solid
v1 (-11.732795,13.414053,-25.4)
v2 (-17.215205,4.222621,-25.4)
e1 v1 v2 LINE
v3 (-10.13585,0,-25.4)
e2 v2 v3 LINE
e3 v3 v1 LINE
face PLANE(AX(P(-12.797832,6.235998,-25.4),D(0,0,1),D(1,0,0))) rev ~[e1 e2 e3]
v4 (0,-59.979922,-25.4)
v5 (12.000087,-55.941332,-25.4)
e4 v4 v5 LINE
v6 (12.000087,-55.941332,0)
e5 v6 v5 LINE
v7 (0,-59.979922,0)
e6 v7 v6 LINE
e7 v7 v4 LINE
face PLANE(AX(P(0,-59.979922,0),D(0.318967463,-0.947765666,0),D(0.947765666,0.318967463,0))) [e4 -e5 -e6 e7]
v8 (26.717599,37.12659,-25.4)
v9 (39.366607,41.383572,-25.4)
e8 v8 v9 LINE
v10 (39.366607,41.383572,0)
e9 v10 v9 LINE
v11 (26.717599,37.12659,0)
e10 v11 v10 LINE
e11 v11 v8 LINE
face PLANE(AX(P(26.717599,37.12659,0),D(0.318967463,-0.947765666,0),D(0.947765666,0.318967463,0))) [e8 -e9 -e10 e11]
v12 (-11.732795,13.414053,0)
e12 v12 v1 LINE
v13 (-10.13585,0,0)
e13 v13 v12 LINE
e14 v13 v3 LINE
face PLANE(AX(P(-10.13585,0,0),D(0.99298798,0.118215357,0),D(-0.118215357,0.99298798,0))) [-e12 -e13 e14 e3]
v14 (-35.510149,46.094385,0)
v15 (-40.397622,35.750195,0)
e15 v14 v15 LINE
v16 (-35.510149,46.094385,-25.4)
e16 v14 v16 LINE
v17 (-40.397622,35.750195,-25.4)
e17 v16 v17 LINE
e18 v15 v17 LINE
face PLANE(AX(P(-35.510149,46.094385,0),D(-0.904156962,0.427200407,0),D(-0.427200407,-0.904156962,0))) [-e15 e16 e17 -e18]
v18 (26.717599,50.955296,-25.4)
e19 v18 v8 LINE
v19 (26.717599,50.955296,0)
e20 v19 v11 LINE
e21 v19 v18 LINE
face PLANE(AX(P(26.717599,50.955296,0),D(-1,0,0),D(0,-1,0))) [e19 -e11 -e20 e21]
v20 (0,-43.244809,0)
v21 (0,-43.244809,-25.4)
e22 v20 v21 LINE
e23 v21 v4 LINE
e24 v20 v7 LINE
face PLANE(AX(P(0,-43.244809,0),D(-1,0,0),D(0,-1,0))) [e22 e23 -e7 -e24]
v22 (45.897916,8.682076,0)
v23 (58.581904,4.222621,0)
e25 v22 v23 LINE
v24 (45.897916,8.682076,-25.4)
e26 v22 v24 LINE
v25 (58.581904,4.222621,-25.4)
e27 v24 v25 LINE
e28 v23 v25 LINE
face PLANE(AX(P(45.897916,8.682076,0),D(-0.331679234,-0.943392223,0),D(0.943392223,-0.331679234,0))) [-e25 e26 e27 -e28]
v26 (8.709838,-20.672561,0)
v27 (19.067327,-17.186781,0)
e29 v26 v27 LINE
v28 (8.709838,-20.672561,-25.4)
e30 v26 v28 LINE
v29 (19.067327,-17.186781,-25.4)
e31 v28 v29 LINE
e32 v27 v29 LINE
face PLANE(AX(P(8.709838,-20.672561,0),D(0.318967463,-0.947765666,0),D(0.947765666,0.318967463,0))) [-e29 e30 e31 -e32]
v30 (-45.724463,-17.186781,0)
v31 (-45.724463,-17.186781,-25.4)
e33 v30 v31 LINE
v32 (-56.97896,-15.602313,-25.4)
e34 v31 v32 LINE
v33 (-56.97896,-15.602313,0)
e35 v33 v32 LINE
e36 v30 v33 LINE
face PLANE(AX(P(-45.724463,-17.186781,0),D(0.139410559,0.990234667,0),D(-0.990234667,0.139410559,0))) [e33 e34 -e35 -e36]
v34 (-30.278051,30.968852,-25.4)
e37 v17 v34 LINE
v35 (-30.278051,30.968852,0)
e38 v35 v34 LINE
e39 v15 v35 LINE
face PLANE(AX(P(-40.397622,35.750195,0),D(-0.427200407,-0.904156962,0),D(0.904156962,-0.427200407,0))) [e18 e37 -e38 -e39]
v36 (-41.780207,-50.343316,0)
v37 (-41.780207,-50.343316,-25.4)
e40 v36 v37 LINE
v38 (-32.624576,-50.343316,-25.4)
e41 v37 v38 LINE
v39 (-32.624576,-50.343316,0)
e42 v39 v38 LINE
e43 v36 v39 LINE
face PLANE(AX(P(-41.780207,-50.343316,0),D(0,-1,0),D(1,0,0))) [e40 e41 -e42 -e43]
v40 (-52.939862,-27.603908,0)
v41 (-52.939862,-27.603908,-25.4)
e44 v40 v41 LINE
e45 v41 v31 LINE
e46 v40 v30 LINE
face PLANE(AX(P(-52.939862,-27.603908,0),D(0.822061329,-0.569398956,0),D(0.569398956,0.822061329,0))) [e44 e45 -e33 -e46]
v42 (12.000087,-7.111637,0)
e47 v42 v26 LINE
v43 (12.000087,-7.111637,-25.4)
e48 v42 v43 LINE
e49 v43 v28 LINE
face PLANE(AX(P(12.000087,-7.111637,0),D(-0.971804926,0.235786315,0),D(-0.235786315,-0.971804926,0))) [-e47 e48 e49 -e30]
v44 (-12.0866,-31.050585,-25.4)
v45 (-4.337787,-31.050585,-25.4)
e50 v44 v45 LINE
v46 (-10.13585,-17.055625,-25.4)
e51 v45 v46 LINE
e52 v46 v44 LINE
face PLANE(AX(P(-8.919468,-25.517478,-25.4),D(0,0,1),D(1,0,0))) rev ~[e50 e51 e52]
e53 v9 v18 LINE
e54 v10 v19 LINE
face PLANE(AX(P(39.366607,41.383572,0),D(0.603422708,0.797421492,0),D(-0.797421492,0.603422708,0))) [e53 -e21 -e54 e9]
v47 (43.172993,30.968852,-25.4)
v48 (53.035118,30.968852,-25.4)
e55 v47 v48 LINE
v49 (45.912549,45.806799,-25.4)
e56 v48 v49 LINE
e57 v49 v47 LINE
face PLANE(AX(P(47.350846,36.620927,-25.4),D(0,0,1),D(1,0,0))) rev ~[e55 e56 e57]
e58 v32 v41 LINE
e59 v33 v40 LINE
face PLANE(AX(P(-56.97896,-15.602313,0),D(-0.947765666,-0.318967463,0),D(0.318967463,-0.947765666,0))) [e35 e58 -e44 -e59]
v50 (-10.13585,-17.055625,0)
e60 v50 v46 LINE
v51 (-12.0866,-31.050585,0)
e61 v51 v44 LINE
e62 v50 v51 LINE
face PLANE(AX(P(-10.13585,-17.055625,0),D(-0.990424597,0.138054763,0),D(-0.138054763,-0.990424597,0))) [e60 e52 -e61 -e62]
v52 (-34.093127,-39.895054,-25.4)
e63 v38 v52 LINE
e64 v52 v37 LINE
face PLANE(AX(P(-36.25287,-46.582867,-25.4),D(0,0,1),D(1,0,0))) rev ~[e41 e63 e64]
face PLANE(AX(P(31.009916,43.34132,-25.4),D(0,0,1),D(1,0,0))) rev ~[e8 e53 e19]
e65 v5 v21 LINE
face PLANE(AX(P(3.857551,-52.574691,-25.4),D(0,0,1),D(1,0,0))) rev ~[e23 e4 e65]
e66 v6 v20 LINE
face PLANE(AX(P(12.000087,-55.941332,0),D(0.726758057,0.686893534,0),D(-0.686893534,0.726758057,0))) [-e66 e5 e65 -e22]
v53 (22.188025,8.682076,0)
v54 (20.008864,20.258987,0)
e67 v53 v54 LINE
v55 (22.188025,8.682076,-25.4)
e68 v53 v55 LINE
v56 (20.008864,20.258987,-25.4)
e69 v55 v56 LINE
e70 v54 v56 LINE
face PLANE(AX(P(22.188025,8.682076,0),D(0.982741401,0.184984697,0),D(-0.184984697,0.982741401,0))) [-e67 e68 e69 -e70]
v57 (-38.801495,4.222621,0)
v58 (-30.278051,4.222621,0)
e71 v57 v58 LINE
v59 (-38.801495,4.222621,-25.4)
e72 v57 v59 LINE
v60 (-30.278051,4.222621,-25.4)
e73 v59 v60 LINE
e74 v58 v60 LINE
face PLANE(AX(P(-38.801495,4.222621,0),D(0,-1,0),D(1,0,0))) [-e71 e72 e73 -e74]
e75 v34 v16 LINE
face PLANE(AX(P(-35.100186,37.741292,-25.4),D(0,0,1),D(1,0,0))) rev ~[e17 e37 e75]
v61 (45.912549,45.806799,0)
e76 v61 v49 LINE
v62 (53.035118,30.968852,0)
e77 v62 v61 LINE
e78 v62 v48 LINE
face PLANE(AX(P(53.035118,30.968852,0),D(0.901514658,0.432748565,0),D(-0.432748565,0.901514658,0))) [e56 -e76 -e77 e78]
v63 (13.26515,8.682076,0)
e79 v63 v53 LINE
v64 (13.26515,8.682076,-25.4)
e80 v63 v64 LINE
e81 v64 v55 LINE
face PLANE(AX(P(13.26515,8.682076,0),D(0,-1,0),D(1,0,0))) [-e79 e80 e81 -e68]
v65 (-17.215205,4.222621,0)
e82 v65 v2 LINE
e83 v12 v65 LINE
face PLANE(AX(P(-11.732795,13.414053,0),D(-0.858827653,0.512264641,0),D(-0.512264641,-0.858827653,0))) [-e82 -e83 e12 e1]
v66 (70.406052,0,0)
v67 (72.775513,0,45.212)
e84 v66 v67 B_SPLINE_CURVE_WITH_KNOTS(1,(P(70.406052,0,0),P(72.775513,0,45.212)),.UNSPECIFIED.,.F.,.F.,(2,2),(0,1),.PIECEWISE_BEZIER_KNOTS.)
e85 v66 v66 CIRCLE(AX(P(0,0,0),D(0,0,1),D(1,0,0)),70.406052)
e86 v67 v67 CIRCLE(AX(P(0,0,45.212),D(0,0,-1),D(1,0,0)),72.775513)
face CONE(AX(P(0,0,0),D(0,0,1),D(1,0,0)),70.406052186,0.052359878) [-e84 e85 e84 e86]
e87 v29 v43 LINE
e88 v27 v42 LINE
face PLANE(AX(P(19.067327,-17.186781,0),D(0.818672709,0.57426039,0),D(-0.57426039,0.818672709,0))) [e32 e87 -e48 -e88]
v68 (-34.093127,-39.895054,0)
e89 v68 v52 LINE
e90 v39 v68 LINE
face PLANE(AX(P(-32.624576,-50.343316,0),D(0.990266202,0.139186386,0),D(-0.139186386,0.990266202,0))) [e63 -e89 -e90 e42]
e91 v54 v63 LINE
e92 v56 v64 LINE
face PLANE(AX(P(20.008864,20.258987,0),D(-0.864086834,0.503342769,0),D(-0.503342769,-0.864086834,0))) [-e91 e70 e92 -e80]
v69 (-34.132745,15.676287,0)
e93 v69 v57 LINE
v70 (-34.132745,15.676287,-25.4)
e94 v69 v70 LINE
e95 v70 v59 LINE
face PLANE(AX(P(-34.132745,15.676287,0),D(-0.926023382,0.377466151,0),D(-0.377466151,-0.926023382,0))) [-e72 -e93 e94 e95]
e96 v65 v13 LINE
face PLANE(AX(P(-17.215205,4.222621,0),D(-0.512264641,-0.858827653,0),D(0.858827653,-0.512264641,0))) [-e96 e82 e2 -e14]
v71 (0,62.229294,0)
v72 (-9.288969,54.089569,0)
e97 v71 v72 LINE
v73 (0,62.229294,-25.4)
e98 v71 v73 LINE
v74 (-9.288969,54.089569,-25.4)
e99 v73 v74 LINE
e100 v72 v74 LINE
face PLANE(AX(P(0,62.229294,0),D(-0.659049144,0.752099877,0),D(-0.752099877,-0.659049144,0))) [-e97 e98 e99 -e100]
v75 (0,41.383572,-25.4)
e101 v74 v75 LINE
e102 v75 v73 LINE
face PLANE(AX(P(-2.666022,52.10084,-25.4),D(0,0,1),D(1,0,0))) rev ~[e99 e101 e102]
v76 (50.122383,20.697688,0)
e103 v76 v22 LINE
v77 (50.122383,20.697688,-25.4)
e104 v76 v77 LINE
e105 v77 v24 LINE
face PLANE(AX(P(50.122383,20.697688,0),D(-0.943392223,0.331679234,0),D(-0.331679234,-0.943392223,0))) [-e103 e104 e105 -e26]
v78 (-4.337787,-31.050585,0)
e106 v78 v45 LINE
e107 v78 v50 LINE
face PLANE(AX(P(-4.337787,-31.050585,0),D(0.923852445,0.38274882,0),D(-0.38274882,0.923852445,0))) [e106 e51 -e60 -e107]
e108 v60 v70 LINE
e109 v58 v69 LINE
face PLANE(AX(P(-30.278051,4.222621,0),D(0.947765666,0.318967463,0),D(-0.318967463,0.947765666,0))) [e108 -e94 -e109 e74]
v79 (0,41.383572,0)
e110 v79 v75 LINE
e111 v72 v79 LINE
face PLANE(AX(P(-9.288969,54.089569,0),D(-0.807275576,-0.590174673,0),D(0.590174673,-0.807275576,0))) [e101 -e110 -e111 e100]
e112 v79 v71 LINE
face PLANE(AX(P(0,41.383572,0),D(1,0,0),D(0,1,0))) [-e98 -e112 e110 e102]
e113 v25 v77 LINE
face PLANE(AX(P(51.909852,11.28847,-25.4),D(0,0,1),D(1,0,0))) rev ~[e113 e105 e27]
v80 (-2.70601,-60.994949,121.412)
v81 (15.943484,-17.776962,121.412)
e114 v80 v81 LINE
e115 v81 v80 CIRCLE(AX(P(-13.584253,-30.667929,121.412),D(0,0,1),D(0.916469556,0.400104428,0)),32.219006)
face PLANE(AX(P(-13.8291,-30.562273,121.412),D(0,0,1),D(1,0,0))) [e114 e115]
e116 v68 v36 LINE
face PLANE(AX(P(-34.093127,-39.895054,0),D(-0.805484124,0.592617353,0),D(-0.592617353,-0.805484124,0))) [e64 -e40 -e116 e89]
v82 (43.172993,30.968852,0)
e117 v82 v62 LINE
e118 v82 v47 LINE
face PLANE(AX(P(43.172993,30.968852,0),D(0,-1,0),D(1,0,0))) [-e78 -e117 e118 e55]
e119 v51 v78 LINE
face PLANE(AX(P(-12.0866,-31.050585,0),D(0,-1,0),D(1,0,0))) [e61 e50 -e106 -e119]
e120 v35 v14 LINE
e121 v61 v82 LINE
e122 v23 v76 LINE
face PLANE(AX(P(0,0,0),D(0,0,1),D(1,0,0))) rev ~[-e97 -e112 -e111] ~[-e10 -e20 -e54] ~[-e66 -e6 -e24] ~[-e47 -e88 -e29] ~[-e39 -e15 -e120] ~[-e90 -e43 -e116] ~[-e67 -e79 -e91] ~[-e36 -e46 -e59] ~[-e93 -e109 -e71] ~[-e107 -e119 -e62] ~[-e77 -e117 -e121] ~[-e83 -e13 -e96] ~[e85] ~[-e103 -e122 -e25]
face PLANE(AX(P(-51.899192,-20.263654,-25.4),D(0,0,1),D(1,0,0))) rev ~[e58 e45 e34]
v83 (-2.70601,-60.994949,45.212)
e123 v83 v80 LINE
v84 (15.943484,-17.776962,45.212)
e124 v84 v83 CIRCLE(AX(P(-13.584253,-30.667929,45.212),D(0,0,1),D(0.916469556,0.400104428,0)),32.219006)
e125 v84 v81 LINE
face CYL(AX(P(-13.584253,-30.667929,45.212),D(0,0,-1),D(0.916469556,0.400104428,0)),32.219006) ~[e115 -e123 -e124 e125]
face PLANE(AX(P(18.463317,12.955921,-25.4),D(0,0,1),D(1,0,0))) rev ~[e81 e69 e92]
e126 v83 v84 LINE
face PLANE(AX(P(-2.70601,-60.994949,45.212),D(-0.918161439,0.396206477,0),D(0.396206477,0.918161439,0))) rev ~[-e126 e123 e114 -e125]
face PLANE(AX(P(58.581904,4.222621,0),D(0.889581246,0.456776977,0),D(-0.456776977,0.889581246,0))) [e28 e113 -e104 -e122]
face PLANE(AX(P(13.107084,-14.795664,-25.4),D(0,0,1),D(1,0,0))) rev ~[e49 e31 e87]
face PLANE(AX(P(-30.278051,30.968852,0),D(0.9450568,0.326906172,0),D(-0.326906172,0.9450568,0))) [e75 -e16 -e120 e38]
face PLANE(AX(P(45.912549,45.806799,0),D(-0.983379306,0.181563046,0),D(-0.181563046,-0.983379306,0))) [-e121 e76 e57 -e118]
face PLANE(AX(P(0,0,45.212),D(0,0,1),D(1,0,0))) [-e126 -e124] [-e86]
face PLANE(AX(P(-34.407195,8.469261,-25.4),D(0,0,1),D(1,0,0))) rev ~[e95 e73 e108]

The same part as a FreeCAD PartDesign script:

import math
import FreeCAD as App
import Part
import Sketcher
from FreeCAD import Vector
Q = App.Units.Quantity

doc = App.newDocument("Part")
body = doc.addObject("PartDesign::Body", "Body")

# Sketch on XY plane
sketch1 = body.newObject("Sketcher::SketchObject", "Sketch")
sketch1.AttachmentSupport = (doc.getObject("XY_Plane"), [""])
sketch1.MapMode = "FlatFace"
sketch1.addGeometry(Part.Circle(Vector(0, 0, 0), Vector(0, 0, 1), 70.406052), False)
sketch1.addConstraint([
    Sketcher.Constraint("Coincident", 0, 3, -1, 1),
    Sketcher.Constraint("Diameter", 0, 140.812104),
])
pad1 = body.newObject("PartDesign::Pad", "Pad")
pad1.Profile = sketch1
pad1.Length = Q("1.78 in")
pad1.TaperAngle = 3

# Sketch on XY plane
sketch2 = body.newObject("Sketcher::SketchObject", "Sketch001")
sketch2.AttachmentSupport = (doc.getObject("XY_Plane"), [""])
sketch2.MapMode = "FlatFace"
sketch2.addGeometry([
    Part.LineSegment(Vector(13.26515, 8.682076, 0), Vector(22.188025, 8.682076, 0)),  # 0
    Part.LineSegment(Vector(22.188025, 8.682076, 0), Vector(20.008864, 20.258987, 0)),  # 1
    Part.LineSegment(Vector(20.008864, 20.258987, 0), Vector(13.26515, 8.682076, 0)),  # 2
    Part.LineSegment(Vector(26.717599, 37.12659, 0), Vector(39.366607, 41.383572, 0)),  # 3
    Part.LineSegment(Vector(39.366607, 41.383572, 0), Vector(26.717599, 50.955296, 0)),  # 4
    Part.LineSegment(Vector(26.717599, 50.955296, 0), Vector(26.717599, 37.12659, 0)),  # 5
    Part.LineSegment(Vector(0, 41.383572, 0), Vector(0, 62.229294, 0)),  # 6
    Part.LineSegment(Vector(0, 62.229294, 0), Vector(-9.288969, 54.089569, 0)),  # 7
    Part.LineSegment(Vector(-9.288969, 54.089569, 0), Vector(0, 41.383572, 0)),  # 8
    Part.LineSegment(Vector(-17.215205, 4.222621, 0), Vector(-10.13585, 0, 0)),  # 9
    Part.LineSegment(Vector(-10.13585, 0, 0), Vector(-11.732795, 13.414053, 0)),  # 10
    Part.LineSegment(Vector(-11.732795, 13.414053, 0), Vector(-17.215205, 4.222621, 0)),  # 11
    Part.LineSegment(Vector(-12.0866, -31.050585, 0), Vector(-4.337787, -31.050585, 0)),  # 12
    Part.LineSegment(Vector(-4.337787, -31.050585, 0), Vector(-10.13585, -17.055625, 0)),  # 13
    Part.LineSegment(Vector(-10.13585, -17.055625, 0), Vector(-12.0866, -31.050585, 0)),  # 14
    Part.LineSegment(Vector(0, -59.979922, 0), Vector(12.000087, -55.941332, 0)),  # 15
    Part.LineSegment(Vector(12.000087, -55.941332, 0), Vector(0, -43.244809, 0)),  # 16
    Part.LineSegment(Vector(0, -43.244809, 0), Vector(0, -59.979922, 0)),  # 17
    Part.LineSegment(Vector(45.897916, 8.682076, 0), Vector(58.581904, 4.222621, 0)),  # 18
    Part.LineSegment(Vector(58.581904, 4.222621, 0), Vector(50.122383, 20.697688, 0)),  # 19
    Part.LineSegment(Vector(50.122383, 20.697688, 0), Vector(45.897916, 8.682076, 0)),  # 20
    Part.LineSegment(Vector(-40.397622, 35.750195, 0), Vector(-30.278051, 30.968852, 0)),  # 21
    Part.LineSegment(Vector(-30.278051, 30.968852, 0), Vector(-35.510149, 46.094385, 0)),  # 22
    Part.LineSegment(Vector(-35.510149, 46.094385, 0), Vector(-40.397622, 35.750195, 0)),  # 23
    Part.LineSegment(Vector(-52.939862, -27.603908, 0), Vector(-45.724463, -17.186781, 0)),  # 24
    Part.LineSegment(Vector(-45.724463, -17.186781, 0), Vector(-56.97896, -15.602313, 0)),  # 25
    Part.LineSegment(Vector(-56.97896, -15.602313, 0), Vector(-52.939862, -27.603908, 0)),  # 26
    Part.LineSegment(Vector(8.709838, -20.672561, 0), Vector(19.067327, -17.186781, 0)),  # 27
    Part.LineSegment(Vector(19.067327, -17.186781, 0), Vector(12.000087, -7.111637, 0)),  # 28
    Part.LineSegment(Vector(12.000087, -7.111637, 0), Vector(8.709838, -20.672561, 0)),  # 29
    Part.LineSegment(Vector(-38.801495, 4.222621, 0), Vector(-30.278051, 4.222621, 0)),  # 30
    Part.LineSegment(Vector(-30.278051, 4.222621, 0), Vector(-34.132745, 15.676287, 0)),  # 31
    Part.LineSegment(Vector(-34.132745, 15.676287, 0), Vector(-38.801495, 4.222621, 0)),  # 32
    Part.LineSegment(Vector(-41.780207, -50.343316, 0), Vector(-32.624576, -50.343316, 0)),  # 33
    Part.LineSegment(Vector(-32.624576, -50.343316, 0), Vector(-34.093127, -39.895054, 0)),  # 34
    Part.LineSegment(Vector(-34.093127, -39.895054, 0), Vector(-41.780207, -50.343316, 0)),  # 35
    Part.LineSegment(Vector(43.172993, 30.968852, 0), Vector(53.035118, 30.968852, 0)),  # 36
    Part.LineSegment(Vector(53.035118, 30.968852, 0), Vector(45.912549, 45.806799, 0)),  # 37
    Part.LineSegment(Vector(45.912549, 45.806799, 0), Vector(43.172993, 30.968852, 0)),  # 38
], False)
sketch2.addConstraint([
    Sketcher.Constraint("Coincident", 0, 2, 1, 1),
    Sketcher.Constraint("Coincident", 1, 2, 2, 1),
    Sketcher.Constraint("Coincident", 2, 2, 0, 1),
    Sketcher.Constraint("Coincident", 3, 2, 4, 1),
    Sketcher.Constraint("Coincident", 4, 2, 5, 1),
    Sketcher.Constraint("Coincident", 5, 2, 3, 1),
    Sketcher.Constraint("Coincident", 6, 2, 7, 1),
    Sketcher.Constraint("Coincident", 7, 2, 8, 1),
    Sketcher.Constraint("Coincident", 8, 2, 6, 1),
    Sketcher.Constraint("Coincident", 9, 2, 10, 1),
    Sketcher.Constraint("Coincident", 10, 2, 11, 1),
    Sketcher.Constraint("Coincident", 11, 2, 9, 1),
    Sketcher.Constraint("Coincident", 12, 2, 13, 1),
    Sketcher.Constraint("Coincident", 13, 2, 14, 1),
    Sketcher.Constraint("Coincident", 14, 2, 12, 1),
    Sketcher.Constraint("Coincident", 15, 2, 16, 1),
    Sketcher.Constraint("Coincident", 16, 2, 17, 1),
    Sketcher.Constraint("Coincident", 17, 2, 15, 1),
    Sketcher.Constraint("Coincident", 18, 2, 19, 1),
    Sketcher.Constraint("Coincident", 19, 2, 20, 1),
    Sketcher.Constraint("Coincident", 20, 2, 18, 1),
    Sketcher.Constraint("Coincident", 21, 2, 22, 1),
    Sketcher.Constraint("Coincident", 22, 2, 23, 1),
    Sketcher.Constraint("Coincident", 23, 2, 21, 1),
    Sketcher.Constraint("Coincident", 24, 2, 25, 1),
    Sketcher.Constraint("Coincident", 25, 2, 26, 1),
    Sketcher.Constraint("Coincident", 26, 2, 24, 1),
    Sketcher.Constraint("Coincident", 27, 2, 28, 1),
    Sketcher.Constraint("Coincident", 28, 2, 29, 1),
    Sketcher.Constraint("Coincident", 29, 2, 27, 1),
    Sketcher.Constraint("Coincident", 30, 2, 31, 1),
    Sketcher.Constraint("Coincident", 31, 2, 32, 1),
    Sketcher.Constraint("Coincident", 32, 2, 30, 1),
    Sketcher.Constraint("Coincident", 33, 2, 34, 1),
    Sketcher.Constraint("Coincident", 34, 2, 35, 1),
    Sketcher.Constraint("Coincident", 35, 2, 33, 1),
    Sketcher.Constraint("Coincident", 36, 2, 37, 1),
    Sketcher.Constraint("Coincident", 37, 2, 38, 1),
    Sketcher.Constraint("Coincident", 38, 2, 36, 1),
    Sketcher.Constraint("Horizontal", 0),
    Sketcher.Constraint("Vertical", 5),
    Sketcher.Constraint("Vertical", 6),
    Sketcher.Constraint("Horizontal", 12),
    Sketcher.Constraint("Vertical", 17),
    Sketcher.Constraint("Horizontal", 30),
    Sketcher.Constraint("Horizontal", 33),
    Sketcher.Constraint("Horizontal", 36),
    Sketcher.Constraint("PointOnObject", 6, 2, -2),
    Sketcher.Constraint("PointOnObject", 9, 2, -1),
    Sketcher.Constraint("PointOnObject", 16, 2, -2),
    Sketcher.Constraint("Perpendicular", 9, 11),
    Sketcher.Constraint("Parallel", 3, 15),
    Sketcher.Constraint("Perpendicular", 18, 20),
    Sketcher.Constraint("Perpendicular", 21, 23),
    Sketcher.Constraint("Perpendicular", 15, 26),
    Sketcher.Constraint("Perpendicular", 26, 27),
    Sketcher.Constraint("Perpendicular", 27, 31),
    Sketcher.Constraint("Horizontal", 3, 2, 8, 2),
    Sketcher.Constraint("Horizontal", 11, 2, 18, 2),
    Sketcher.Constraint("Horizontal", 2, 2, 20, 2),
    Sketcher.Constraint("Horizontal", 24, 2, 27, 2),
    Sketcher.Constraint("Horizontal", 18, 2, 30, 2),
    Sketcher.Constraint("Horizontal", 21, 2, 36, 2),
    Sketcher.Constraint("Vertical", 9, 2, 13, 2),
    Sketcher.Constraint("Vertical", 15, 2, 28, 2),
    Sketcher.Constraint("Vertical", 21, 2, 30, 2),
    Sketcher.Constraint("DistanceX", 21, 2, 9, 2, Q("0.7930001 in")),
    Sketcher.Constraint("DistanceY", 0, 2, 4, 2, Q("1.6643 in")),
    Sketcher.Constraint("DistanceX", 5, 2, 18, 2, Q("1.2545002 in")),
    Sketcher.Constraint("DistanceX", 28, 2, 0, 2, Q("0.4010999 in")),
    Sketcher.Constraint("Distance", 11, 10.702301),
    Sketcher.Constraint("Distance", 23, 11.440701),
    Sketcher.Constraint("DistanceX", 33, 1, 33, 2, 9.155631),
    Sketcher.Constraint("DistanceX", -1, 1, 4, 2, 26.717599),
    Sketcher.Constraint("DistanceX", 14, 2, -1, 1, 12.0866),
    Sketcher.Constraint("DistanceY", -1, 1, 37, 2, 45.806799),
    Sketcher.Constraint("DistanceY", 4, 2, 6, 2, 11.273999),
    Sketcher.Constraint("DistanceX", 9, 2, 2, 2, 23.401),
    Sketcher.Constraint("DistanceY", 13, 2, 2, 2, 25.737701),
    Sketcher.Constraint("DistanceY", 19, 2, 5, 2, 16.428902),
    Sketcher.Constraint("DistanceY", 1, 2, 19, 2, 0.4387),
    Sketcher.Constraint("DistanceY", 10, 2, 21, 2, 17.554799),
    Sketcher.Constraint("DistanceX", 22, 2, 21, 2, 5.232098),
    Sketcher.Constraint("DistanceX", 26, 2, 24, 2, 7.215399),
    Sketcher.Constraint("DistanceX", 27, 2, 0, 2, 3.120698),
    Sketcher.Constraint("DistanceX", 20, 2, 36, 2, 7.137202),
    Sketcher.Constraint("Distance", 1, 11.780222),
    Sketcher.Constraint("Distance", 7, 12.350711),
    Sketcher.Constraint("Distance", 13, 15.14848),
    Sketcher.Constraint("Distance", 15, 12.661449),
    Sketcher.Constraint("Distance", 21, 11.192272),
    Sketcher.Constraint("Distance", 26, 12.66304),
    Sketcher.Constraint("Distance", 28, 12.306682),
    Sketcher.Constraint("Distance", 29, 13.954368),
    Sketcher.Constraint("Distance", 38, 15.088732),
    Sketcher.Constraint("DistanceX", 0, 1, 0, 2, 8.922875),
    Sketcher.Constraint("DistanceX", 12, 1, 12, 2, 7.748813),
    Sketcher.Constraint("DistanceX", 30, 1, 30, 2, 8.523444),
    Sketcher.Constraint("DistanceX", 36, 1, 36, 2, 9.862125),
    Sketcher.Constraint("DistanceY", 5, 2, 5, 1, 13.828706),
    Sketcher.Constraint("DistanceY", 6, 1, 6, 2, 20.845722),
    Sketcher.Constraint("DistanceY", 17, 2, 17, 1, 16.735114),
    Sketcher.Constraint("DistanceX", -1, 1, 2, 2, 13.26515),
    Sketcher.Constraint("DistanceY", -1, 1, 3, 2, 41.383572),
    Sketcher.Constraint("DistanceX", 7, 2, -1, 1, 9.288969),
    Sketcher.Constraint("DistanceY", -1, 1, 11, 2, 4.222621),
    Sketcher.Constraint("DistanceY", 16, 2, -1, 1, 43.244809),
    Sketcher.Constraint("DistanceY", 24, 2, -1, 1, 17.186781),
    Sketcher.Constraint("DistanceX", 25, 2, -1, 1, 56.97896),
    Sketcher.Constraint("DistanceX", -1, 1, 37, 2, 45.912549),
    Sketcher.Constraint("DistanceY", 10, 2, 8, 2, 27.969519),
    Sketcher.Constraint("DistanceY", 24, 2, 25, 2, 1.584469),
    Sketcher.Constraint("DistanceX", 31, 2, 11, 2, 16.91754),
    Sketcher.Constraint("DistanceY", 33, 2, 14, 2, 19.292731),
    Sketcher.Constraint("DistanceX", 33, 2, 12, 2, 28.286789),
    Sketcher.Constraint("DistanceX", 34, 2, 33, 2, 1.46855),
    Sketcher.Constraint("DistanceY", 34, 2, 14, 2, 8.844469),
])
pad2 = body.newObject("PartDesign::Pad", "Pad001")
pad2.Profile = sketch2
pad2.Length = Q("1 in")
pad2.Reversed = True

# Sketch on XY plane
sketch3 = body.newObject("Sketcher::SketchObject", "Sketch002")
sketch3.AttachmentSupport = (doc.getObject("XY_Plane"), [""])
sketch3.MapMode = "FlatFace"
sketch3.AttachmentOffset = App.Placement(Vector(0, 0, 1.78 * 25.4), App.Rotation())
sketch3.addGeometry([
    Part.LineSegment(Vector(-2.70601, -60.994949, 0), Vector(15.943484, -17.776962, 0)),
    Part.ArcOfCircle(Part.Circle(Vector(-13.584253, -30.667929, 0), Vector(0, 0, 1), 32.219006), math.radians(23.584707), math.radians(289.732813)),
], False)
sketch3.addConstraint([
    Sketcher.Constraint("Coincident", 0, 1, 1, 2),
    Sketcher.Constraint("Coincident", 1, 1, 0, 2),
    Sketcher.Constraint("Radius", 1, 32.219006),
    Sketcher.Constraint("Distance", 0, 47.070139),
    Sketcher.Constraint("DistanceY", 1, 3, -1, 1, 30.667929),
    Sketcher.Constraint("DistanceX", 0, 1, -1, 1, 2.70601),
    Sketcher.Constraint("DistanceY", 0, 1, -1, 1, 60.994949),
])
pad3 = body.newObject("PartDesign::Pad", "Pad002")
pad3.Profile = sketch3
pad3.Length = Q("3 in")

doc.recompute()
